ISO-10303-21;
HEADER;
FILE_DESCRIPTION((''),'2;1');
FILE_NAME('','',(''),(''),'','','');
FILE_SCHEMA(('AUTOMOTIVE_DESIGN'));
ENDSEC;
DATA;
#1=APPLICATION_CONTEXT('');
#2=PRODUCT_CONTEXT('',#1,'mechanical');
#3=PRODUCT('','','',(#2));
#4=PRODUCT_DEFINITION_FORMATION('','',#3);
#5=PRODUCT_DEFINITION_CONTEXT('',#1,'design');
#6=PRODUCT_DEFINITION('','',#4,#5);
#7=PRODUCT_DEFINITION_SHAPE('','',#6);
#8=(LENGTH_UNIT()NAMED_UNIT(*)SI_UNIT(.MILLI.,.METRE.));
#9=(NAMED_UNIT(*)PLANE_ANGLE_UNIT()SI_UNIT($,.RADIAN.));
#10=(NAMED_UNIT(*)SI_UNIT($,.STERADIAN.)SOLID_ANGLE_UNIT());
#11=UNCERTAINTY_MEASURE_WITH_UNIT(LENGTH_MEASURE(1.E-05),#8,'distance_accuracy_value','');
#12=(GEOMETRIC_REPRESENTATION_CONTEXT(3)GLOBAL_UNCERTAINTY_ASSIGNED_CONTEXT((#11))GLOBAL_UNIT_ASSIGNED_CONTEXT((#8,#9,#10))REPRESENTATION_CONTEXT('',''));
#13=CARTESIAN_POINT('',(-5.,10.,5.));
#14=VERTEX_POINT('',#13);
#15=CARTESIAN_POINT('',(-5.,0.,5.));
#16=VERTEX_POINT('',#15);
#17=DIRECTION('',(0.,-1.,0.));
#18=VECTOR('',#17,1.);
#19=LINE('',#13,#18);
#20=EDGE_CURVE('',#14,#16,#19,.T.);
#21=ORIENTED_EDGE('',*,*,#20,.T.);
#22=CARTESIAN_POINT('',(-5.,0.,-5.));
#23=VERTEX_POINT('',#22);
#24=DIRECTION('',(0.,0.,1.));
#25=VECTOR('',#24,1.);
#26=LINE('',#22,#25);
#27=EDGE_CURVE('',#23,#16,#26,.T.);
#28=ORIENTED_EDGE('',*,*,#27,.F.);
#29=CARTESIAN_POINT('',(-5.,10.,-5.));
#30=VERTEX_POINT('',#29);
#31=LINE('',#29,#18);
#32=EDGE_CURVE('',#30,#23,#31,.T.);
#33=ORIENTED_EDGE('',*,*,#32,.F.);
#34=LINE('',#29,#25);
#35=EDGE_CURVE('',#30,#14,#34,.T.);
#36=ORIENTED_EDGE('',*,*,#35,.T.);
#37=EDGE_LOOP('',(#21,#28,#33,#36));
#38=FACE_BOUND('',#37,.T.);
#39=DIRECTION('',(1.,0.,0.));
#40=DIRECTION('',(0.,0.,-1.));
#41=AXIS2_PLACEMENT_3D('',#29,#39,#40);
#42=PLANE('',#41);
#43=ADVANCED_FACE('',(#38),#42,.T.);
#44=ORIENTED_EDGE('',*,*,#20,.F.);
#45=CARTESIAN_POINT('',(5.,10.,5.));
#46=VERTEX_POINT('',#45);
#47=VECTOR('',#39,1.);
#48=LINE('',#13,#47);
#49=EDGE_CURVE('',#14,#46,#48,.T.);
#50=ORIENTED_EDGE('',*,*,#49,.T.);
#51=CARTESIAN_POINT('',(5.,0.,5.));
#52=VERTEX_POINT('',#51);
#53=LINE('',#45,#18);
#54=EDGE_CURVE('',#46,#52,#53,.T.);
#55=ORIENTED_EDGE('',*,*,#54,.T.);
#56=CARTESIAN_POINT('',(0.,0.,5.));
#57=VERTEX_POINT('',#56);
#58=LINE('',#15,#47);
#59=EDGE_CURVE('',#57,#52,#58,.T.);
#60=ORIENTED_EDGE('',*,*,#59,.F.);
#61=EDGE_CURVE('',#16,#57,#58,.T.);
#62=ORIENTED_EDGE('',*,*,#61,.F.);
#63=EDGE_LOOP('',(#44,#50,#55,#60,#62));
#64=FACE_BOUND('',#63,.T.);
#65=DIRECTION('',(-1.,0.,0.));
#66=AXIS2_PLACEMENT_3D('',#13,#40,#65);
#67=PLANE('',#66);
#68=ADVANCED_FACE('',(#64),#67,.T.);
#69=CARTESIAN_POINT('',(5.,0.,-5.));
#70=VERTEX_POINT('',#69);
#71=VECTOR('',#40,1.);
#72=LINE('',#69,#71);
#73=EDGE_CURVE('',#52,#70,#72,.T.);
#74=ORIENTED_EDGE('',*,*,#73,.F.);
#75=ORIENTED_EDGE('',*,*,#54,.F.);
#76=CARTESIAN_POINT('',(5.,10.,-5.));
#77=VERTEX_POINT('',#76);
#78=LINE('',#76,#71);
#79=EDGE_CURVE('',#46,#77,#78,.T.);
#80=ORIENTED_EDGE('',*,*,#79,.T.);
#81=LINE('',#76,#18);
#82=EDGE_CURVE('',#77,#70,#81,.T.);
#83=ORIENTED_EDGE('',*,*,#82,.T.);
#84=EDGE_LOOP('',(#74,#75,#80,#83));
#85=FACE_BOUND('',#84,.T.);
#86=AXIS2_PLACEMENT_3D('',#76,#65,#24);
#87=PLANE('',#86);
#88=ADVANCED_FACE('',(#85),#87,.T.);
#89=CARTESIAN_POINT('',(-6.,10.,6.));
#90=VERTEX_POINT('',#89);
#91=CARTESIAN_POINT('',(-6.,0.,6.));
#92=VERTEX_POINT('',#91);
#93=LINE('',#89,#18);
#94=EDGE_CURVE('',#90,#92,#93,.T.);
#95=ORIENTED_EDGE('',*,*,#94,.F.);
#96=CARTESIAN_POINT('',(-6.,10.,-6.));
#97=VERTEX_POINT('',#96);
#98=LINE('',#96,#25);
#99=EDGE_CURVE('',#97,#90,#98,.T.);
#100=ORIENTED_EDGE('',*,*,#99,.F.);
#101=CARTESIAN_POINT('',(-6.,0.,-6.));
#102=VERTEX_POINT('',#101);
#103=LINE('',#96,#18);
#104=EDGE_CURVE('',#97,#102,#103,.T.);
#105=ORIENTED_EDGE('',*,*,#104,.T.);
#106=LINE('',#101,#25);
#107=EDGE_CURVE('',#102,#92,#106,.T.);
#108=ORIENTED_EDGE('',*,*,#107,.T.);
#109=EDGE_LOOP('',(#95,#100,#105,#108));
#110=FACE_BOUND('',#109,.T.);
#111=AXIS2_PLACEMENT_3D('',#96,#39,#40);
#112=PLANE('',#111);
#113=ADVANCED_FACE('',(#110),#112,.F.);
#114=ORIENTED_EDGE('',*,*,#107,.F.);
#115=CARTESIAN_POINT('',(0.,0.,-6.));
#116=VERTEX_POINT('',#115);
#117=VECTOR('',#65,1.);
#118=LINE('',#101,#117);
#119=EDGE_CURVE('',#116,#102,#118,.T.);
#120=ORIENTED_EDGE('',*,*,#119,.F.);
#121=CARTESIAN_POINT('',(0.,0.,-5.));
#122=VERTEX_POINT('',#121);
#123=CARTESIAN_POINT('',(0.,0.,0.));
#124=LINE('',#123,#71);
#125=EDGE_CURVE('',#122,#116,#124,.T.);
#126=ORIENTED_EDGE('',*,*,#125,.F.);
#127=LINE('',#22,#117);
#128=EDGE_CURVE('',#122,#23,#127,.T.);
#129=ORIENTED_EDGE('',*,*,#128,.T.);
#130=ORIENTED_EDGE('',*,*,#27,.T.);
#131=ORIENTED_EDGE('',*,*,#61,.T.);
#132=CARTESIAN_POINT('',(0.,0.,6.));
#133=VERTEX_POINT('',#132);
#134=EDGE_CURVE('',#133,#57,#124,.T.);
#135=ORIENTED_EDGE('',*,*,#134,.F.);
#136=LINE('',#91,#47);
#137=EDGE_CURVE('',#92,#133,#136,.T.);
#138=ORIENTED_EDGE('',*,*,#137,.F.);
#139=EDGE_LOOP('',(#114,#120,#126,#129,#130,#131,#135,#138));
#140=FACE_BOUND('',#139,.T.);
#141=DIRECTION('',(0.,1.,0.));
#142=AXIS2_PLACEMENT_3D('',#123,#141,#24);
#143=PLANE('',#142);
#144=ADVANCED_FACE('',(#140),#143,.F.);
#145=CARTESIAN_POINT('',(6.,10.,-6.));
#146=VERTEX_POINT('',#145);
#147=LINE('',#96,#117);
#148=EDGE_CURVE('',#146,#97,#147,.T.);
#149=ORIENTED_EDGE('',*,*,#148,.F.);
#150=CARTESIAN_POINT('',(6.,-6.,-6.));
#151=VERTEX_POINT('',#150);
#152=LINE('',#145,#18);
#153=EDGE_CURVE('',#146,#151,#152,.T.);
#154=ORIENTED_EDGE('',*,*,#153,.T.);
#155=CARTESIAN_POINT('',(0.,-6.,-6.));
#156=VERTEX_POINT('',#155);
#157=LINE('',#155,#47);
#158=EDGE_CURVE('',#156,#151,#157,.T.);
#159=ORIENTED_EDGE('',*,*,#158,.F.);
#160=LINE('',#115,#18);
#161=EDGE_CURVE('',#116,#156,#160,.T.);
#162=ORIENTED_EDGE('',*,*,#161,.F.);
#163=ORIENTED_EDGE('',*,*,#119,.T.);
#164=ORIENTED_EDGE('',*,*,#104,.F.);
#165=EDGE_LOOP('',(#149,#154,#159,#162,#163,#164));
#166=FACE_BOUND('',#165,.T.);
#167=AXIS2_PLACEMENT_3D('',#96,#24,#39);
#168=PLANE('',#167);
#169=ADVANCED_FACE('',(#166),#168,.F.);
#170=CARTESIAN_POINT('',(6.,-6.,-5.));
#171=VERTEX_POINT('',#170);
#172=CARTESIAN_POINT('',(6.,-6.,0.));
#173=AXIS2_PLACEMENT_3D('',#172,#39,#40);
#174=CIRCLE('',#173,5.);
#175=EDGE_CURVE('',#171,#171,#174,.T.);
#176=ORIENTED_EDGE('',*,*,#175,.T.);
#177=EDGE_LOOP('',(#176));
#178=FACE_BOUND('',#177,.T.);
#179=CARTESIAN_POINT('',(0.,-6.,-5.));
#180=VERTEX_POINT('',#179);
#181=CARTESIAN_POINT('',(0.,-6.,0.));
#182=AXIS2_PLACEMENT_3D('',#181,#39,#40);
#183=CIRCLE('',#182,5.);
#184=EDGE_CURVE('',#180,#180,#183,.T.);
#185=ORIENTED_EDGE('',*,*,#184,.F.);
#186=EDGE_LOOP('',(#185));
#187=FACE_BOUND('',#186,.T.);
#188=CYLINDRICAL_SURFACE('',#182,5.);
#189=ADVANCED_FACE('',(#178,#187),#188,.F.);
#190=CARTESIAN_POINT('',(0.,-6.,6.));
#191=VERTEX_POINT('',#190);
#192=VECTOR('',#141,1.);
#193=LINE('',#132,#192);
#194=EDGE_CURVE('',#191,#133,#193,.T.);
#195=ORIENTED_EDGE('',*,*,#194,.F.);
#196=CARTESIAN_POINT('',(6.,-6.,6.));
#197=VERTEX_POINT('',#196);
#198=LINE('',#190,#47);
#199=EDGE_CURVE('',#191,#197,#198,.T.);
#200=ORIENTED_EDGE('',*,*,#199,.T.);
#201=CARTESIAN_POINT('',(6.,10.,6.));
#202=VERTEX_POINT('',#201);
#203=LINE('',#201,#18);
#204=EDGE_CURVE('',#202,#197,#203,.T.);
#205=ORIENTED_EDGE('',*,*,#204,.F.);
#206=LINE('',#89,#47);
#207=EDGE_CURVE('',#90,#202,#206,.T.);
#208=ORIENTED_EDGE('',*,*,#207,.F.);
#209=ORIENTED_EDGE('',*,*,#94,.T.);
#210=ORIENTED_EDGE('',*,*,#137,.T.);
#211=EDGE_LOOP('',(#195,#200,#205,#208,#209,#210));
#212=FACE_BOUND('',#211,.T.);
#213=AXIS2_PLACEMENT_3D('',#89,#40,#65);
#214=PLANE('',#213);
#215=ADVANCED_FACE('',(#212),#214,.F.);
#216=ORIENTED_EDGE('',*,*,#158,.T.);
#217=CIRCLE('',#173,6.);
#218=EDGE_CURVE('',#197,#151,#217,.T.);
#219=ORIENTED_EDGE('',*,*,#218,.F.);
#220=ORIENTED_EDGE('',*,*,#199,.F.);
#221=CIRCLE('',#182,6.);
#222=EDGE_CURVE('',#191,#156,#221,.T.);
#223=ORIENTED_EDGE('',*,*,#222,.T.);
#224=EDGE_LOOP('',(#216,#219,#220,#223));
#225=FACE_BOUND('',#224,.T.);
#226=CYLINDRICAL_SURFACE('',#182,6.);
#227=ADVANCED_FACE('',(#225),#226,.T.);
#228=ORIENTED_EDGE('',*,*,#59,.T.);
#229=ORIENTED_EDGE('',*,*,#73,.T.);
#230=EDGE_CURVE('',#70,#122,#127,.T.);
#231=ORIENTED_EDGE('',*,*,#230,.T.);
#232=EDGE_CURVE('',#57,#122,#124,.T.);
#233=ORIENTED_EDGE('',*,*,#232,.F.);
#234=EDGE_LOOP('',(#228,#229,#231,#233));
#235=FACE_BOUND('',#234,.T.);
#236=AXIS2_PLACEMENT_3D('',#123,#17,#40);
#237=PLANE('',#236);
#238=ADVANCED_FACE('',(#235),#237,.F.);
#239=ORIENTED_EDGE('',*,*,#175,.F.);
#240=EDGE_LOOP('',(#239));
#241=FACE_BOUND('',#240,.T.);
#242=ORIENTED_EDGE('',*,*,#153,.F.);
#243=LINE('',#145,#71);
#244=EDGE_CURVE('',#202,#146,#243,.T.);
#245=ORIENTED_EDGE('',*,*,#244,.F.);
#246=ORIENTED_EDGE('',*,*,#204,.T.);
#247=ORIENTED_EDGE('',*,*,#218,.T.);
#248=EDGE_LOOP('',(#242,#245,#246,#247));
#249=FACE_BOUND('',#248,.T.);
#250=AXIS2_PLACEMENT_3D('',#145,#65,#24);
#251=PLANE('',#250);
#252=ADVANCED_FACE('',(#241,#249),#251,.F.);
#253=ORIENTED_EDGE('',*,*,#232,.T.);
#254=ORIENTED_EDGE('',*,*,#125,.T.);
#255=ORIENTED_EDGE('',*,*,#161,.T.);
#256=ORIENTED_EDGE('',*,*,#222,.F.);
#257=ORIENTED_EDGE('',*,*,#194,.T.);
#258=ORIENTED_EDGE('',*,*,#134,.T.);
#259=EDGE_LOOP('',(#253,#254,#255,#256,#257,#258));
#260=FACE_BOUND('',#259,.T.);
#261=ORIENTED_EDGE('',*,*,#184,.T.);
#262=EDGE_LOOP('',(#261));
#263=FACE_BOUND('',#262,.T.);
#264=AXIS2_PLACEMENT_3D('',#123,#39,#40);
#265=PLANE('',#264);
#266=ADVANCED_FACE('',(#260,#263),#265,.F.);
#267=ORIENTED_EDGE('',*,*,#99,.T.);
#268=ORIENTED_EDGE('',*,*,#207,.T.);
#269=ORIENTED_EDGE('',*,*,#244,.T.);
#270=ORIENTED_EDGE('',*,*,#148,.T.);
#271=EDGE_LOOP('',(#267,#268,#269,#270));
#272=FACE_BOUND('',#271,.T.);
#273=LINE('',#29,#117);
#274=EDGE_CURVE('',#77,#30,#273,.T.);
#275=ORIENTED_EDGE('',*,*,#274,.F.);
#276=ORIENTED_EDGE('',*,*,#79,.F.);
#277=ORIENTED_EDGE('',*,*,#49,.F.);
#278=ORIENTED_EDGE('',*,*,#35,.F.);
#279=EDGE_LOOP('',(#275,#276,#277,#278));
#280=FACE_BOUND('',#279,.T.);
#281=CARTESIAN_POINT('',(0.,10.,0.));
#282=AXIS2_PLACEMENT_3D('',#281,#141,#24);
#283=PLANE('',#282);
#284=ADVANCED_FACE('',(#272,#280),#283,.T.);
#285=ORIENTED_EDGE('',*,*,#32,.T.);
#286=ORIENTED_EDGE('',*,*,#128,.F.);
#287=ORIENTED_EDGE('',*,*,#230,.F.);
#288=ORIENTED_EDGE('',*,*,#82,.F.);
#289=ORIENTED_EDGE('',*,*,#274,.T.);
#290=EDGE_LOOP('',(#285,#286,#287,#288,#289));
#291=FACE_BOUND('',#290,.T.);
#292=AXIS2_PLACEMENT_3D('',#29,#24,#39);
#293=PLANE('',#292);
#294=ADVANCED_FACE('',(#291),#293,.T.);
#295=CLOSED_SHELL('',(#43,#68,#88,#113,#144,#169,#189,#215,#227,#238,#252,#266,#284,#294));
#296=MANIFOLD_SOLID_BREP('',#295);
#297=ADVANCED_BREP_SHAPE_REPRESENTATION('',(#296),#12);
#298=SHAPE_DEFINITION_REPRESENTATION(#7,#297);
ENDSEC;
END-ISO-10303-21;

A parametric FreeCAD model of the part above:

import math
import FreeCAD as App
import Part
import Sketcher
from FreeCAD import Vector
Q = App.Units.Quantity


def add_polygon(sketch, points):
    """Adds a closed chain of lines whose ends are joined by coincident constraints."""
    first, n = sketch.GeometryCount, len(points)
    for a, b in zip(points, points[1:] + points[:1]):
        sketch.addGeometry(Part.LineSegment(App.Vector(*a, 0), App.Vector(*b, 0)), False)
    for i in range(n):
        sketch.addConstraint(Sketcher.Constraint("Coincident", first + i, 2, first + (i + 1) % n, 1))

doc = App.newDocument("Part")
body = doc.addObject("PartDesign::Body", "Body")

sketch1 = doc.addObject("Sketcher::SketchObject", "Sketch")
body.addObject(sketch1)
sketch1.AttachmentSupport = (doc.XZ_Plane, [""])
sketch1.MapMode = "FlatFace"
add_polygon(sketch1, [(-6, -6), (-6, 6), (6, 6), (6, -6)])
add_polygon(sketch1, [(5, 5), (-5, 5), (-5, -5), (5, -5)])
sketch1.addConstraint([
    Sketcher.Constraint("Vertical", 0),
    Sketcher.Constraint("Horizontal", 1),
    Sketcher.Constraint("Vertical", 2),
    Sketcher.Constraint("Horizontal", 3),
    Sketcher.Constraint("Horizontal", 4),
    Sketcher.Constraint("Vertical", 5),
    Sketcher.Constraint("Horizontal", 6),
    Sketcher.Constraint("Vertical", 7),
    Sketcher.Constraint("Symmetric", 0, 2, 2, 2, -1, 1),
    Sketcher.Constraint("Symmetric", 4, 2, 6, 2, -1, 1),
    Sketcher.Constraint("Equal", 3, 0),
    Sketcher.Constraint("Equal", 6, 5),
    Sketcher.Constraint("DistanceX", 1, 1, 1, 2, Q("12 mm")),
    Sketcher.Constraint("DistanceX", 4, 2, 4, 1, Q("10 mm")),
])
pad1 = doc.addObject("PartDesign::Pad", "Pad")
body.addObject(pad1)
pad1.Profile = sketch1
pad1.Length = 10
pad1.Reversed = True

sketch2 = doc.addObject("Sketcher::SketchObject", "Sketch001")
body.addObject(sketch2)
sketch2.AttachmentSupport = (doc.YZ_Plane, [""])
sketch2.MapMode = "FlatFace"
sketch2.AttachmentOffset = App.Placement(Vector(0, 0, 6), App.Rotation())
sketch2.addGeometry([
    Part.LineSegment(Vector(-6, -6, 0), Vector(0, -6, 0)),
    Part.LineSegment(Vector(0, -6, 0), Vector(0, 6, 0)),
    Part.LineSegment(Vector(0, 6, 0), Vector(-6, 6, 0)),
    Part.ArcOfCircle(Part.Circle(Vector(-6, 0, 0), Vector(0, 0, 1), 6), math.radians(90), math.radians(180)),
    Part.ArcOfCircle(Part.Circle(Vector(-6, 0, 0), Vector(0, 0, 1), 6), math.radians(180), math.radians(225)),
    Part.ArcOfCircle(Part.Circle(Vector(-6, 0, 0), Vector(0, 0, 1), 6), math.radians(-135), math.radians(-90)),
], False)
sketch2.addConstraint([
    Sketcher.Constraint("Coincident", 0, 2, 1, 1),
    Sketcher.Constraint("Coincident", 1, 2, 2, 1),
    Sketcher.Constraint("Tangent", 2, 2, 3, 1),
    Sketcher.Constraint("Tangent", 3, 2, 4, 1),
    Sketcher.Constraint("Tangent", 4, 2, 5, 1),
    Sketcher.Constraint("Tangent", 5, 2, 0, 1),
    Sketcher.Constraint("Horizontal", 0),
    Sketcher.Constraint("Vertical", 1),
    Sketcher.Constraint("Horizontal", 2),
    Sketcher.Constraint("Coincident", 5, 3, 3, 3),
    Sketcher.Constraint("Symmetric", 0, 2, 1, 2, -1, 1),
    Sketcher.Constraint("PointOnObject", 3, 2, -1),
    Sketcher.Constraint("Radius", 3, Q("6 mm")),
    Sketcher.Constraint("DistanceX", 0, 1, 0, 2, Q("6 mm")),
    Sketcher.Constraint("DistanceX", 4, 2, -1, 1, Q("10.242641 mm")),
])
pad2 = doc.addObject("PartDesign::Pad", "Pad001")
body.addObject(pad2)
pad2.Profile = sketch2
pad2.Length = 6
pad2.Reversed = True

sketch3 = doc.addObject("Sketcher::SketchObject", "Sketch002")
body.addObject(sketch3)
sketch3.AttachmentSupport = (doc.YZ_Plane, [""])
sketch3.MapMode = "FlatFace"
sketch3.AttachmentOffset = App.Placement(Vector(0, 0, 6), App.Rotation())
sketch3.addGeometry(Part.Circle(Vector(-6, 0, 0), Vector(0, 0, 1), 5), False)
sketch3.addConstraint([
    Sketcher.Constraint("PointOnObject", 0, 3, -1),
    Sketcher.Constraint("Diameter", 0, Q("10 mm")),
    Sketcher.Constraint("DistanceX", 0, 3, -1, 1, Q("6 mm")),
])
pocket1 = doc.addObject("PartDesign::Pocket", "Pocket")
body.addObject(pocket1)
pocket1.Profile = sketch3
pocket1.Length = 6

doc.recompute()
